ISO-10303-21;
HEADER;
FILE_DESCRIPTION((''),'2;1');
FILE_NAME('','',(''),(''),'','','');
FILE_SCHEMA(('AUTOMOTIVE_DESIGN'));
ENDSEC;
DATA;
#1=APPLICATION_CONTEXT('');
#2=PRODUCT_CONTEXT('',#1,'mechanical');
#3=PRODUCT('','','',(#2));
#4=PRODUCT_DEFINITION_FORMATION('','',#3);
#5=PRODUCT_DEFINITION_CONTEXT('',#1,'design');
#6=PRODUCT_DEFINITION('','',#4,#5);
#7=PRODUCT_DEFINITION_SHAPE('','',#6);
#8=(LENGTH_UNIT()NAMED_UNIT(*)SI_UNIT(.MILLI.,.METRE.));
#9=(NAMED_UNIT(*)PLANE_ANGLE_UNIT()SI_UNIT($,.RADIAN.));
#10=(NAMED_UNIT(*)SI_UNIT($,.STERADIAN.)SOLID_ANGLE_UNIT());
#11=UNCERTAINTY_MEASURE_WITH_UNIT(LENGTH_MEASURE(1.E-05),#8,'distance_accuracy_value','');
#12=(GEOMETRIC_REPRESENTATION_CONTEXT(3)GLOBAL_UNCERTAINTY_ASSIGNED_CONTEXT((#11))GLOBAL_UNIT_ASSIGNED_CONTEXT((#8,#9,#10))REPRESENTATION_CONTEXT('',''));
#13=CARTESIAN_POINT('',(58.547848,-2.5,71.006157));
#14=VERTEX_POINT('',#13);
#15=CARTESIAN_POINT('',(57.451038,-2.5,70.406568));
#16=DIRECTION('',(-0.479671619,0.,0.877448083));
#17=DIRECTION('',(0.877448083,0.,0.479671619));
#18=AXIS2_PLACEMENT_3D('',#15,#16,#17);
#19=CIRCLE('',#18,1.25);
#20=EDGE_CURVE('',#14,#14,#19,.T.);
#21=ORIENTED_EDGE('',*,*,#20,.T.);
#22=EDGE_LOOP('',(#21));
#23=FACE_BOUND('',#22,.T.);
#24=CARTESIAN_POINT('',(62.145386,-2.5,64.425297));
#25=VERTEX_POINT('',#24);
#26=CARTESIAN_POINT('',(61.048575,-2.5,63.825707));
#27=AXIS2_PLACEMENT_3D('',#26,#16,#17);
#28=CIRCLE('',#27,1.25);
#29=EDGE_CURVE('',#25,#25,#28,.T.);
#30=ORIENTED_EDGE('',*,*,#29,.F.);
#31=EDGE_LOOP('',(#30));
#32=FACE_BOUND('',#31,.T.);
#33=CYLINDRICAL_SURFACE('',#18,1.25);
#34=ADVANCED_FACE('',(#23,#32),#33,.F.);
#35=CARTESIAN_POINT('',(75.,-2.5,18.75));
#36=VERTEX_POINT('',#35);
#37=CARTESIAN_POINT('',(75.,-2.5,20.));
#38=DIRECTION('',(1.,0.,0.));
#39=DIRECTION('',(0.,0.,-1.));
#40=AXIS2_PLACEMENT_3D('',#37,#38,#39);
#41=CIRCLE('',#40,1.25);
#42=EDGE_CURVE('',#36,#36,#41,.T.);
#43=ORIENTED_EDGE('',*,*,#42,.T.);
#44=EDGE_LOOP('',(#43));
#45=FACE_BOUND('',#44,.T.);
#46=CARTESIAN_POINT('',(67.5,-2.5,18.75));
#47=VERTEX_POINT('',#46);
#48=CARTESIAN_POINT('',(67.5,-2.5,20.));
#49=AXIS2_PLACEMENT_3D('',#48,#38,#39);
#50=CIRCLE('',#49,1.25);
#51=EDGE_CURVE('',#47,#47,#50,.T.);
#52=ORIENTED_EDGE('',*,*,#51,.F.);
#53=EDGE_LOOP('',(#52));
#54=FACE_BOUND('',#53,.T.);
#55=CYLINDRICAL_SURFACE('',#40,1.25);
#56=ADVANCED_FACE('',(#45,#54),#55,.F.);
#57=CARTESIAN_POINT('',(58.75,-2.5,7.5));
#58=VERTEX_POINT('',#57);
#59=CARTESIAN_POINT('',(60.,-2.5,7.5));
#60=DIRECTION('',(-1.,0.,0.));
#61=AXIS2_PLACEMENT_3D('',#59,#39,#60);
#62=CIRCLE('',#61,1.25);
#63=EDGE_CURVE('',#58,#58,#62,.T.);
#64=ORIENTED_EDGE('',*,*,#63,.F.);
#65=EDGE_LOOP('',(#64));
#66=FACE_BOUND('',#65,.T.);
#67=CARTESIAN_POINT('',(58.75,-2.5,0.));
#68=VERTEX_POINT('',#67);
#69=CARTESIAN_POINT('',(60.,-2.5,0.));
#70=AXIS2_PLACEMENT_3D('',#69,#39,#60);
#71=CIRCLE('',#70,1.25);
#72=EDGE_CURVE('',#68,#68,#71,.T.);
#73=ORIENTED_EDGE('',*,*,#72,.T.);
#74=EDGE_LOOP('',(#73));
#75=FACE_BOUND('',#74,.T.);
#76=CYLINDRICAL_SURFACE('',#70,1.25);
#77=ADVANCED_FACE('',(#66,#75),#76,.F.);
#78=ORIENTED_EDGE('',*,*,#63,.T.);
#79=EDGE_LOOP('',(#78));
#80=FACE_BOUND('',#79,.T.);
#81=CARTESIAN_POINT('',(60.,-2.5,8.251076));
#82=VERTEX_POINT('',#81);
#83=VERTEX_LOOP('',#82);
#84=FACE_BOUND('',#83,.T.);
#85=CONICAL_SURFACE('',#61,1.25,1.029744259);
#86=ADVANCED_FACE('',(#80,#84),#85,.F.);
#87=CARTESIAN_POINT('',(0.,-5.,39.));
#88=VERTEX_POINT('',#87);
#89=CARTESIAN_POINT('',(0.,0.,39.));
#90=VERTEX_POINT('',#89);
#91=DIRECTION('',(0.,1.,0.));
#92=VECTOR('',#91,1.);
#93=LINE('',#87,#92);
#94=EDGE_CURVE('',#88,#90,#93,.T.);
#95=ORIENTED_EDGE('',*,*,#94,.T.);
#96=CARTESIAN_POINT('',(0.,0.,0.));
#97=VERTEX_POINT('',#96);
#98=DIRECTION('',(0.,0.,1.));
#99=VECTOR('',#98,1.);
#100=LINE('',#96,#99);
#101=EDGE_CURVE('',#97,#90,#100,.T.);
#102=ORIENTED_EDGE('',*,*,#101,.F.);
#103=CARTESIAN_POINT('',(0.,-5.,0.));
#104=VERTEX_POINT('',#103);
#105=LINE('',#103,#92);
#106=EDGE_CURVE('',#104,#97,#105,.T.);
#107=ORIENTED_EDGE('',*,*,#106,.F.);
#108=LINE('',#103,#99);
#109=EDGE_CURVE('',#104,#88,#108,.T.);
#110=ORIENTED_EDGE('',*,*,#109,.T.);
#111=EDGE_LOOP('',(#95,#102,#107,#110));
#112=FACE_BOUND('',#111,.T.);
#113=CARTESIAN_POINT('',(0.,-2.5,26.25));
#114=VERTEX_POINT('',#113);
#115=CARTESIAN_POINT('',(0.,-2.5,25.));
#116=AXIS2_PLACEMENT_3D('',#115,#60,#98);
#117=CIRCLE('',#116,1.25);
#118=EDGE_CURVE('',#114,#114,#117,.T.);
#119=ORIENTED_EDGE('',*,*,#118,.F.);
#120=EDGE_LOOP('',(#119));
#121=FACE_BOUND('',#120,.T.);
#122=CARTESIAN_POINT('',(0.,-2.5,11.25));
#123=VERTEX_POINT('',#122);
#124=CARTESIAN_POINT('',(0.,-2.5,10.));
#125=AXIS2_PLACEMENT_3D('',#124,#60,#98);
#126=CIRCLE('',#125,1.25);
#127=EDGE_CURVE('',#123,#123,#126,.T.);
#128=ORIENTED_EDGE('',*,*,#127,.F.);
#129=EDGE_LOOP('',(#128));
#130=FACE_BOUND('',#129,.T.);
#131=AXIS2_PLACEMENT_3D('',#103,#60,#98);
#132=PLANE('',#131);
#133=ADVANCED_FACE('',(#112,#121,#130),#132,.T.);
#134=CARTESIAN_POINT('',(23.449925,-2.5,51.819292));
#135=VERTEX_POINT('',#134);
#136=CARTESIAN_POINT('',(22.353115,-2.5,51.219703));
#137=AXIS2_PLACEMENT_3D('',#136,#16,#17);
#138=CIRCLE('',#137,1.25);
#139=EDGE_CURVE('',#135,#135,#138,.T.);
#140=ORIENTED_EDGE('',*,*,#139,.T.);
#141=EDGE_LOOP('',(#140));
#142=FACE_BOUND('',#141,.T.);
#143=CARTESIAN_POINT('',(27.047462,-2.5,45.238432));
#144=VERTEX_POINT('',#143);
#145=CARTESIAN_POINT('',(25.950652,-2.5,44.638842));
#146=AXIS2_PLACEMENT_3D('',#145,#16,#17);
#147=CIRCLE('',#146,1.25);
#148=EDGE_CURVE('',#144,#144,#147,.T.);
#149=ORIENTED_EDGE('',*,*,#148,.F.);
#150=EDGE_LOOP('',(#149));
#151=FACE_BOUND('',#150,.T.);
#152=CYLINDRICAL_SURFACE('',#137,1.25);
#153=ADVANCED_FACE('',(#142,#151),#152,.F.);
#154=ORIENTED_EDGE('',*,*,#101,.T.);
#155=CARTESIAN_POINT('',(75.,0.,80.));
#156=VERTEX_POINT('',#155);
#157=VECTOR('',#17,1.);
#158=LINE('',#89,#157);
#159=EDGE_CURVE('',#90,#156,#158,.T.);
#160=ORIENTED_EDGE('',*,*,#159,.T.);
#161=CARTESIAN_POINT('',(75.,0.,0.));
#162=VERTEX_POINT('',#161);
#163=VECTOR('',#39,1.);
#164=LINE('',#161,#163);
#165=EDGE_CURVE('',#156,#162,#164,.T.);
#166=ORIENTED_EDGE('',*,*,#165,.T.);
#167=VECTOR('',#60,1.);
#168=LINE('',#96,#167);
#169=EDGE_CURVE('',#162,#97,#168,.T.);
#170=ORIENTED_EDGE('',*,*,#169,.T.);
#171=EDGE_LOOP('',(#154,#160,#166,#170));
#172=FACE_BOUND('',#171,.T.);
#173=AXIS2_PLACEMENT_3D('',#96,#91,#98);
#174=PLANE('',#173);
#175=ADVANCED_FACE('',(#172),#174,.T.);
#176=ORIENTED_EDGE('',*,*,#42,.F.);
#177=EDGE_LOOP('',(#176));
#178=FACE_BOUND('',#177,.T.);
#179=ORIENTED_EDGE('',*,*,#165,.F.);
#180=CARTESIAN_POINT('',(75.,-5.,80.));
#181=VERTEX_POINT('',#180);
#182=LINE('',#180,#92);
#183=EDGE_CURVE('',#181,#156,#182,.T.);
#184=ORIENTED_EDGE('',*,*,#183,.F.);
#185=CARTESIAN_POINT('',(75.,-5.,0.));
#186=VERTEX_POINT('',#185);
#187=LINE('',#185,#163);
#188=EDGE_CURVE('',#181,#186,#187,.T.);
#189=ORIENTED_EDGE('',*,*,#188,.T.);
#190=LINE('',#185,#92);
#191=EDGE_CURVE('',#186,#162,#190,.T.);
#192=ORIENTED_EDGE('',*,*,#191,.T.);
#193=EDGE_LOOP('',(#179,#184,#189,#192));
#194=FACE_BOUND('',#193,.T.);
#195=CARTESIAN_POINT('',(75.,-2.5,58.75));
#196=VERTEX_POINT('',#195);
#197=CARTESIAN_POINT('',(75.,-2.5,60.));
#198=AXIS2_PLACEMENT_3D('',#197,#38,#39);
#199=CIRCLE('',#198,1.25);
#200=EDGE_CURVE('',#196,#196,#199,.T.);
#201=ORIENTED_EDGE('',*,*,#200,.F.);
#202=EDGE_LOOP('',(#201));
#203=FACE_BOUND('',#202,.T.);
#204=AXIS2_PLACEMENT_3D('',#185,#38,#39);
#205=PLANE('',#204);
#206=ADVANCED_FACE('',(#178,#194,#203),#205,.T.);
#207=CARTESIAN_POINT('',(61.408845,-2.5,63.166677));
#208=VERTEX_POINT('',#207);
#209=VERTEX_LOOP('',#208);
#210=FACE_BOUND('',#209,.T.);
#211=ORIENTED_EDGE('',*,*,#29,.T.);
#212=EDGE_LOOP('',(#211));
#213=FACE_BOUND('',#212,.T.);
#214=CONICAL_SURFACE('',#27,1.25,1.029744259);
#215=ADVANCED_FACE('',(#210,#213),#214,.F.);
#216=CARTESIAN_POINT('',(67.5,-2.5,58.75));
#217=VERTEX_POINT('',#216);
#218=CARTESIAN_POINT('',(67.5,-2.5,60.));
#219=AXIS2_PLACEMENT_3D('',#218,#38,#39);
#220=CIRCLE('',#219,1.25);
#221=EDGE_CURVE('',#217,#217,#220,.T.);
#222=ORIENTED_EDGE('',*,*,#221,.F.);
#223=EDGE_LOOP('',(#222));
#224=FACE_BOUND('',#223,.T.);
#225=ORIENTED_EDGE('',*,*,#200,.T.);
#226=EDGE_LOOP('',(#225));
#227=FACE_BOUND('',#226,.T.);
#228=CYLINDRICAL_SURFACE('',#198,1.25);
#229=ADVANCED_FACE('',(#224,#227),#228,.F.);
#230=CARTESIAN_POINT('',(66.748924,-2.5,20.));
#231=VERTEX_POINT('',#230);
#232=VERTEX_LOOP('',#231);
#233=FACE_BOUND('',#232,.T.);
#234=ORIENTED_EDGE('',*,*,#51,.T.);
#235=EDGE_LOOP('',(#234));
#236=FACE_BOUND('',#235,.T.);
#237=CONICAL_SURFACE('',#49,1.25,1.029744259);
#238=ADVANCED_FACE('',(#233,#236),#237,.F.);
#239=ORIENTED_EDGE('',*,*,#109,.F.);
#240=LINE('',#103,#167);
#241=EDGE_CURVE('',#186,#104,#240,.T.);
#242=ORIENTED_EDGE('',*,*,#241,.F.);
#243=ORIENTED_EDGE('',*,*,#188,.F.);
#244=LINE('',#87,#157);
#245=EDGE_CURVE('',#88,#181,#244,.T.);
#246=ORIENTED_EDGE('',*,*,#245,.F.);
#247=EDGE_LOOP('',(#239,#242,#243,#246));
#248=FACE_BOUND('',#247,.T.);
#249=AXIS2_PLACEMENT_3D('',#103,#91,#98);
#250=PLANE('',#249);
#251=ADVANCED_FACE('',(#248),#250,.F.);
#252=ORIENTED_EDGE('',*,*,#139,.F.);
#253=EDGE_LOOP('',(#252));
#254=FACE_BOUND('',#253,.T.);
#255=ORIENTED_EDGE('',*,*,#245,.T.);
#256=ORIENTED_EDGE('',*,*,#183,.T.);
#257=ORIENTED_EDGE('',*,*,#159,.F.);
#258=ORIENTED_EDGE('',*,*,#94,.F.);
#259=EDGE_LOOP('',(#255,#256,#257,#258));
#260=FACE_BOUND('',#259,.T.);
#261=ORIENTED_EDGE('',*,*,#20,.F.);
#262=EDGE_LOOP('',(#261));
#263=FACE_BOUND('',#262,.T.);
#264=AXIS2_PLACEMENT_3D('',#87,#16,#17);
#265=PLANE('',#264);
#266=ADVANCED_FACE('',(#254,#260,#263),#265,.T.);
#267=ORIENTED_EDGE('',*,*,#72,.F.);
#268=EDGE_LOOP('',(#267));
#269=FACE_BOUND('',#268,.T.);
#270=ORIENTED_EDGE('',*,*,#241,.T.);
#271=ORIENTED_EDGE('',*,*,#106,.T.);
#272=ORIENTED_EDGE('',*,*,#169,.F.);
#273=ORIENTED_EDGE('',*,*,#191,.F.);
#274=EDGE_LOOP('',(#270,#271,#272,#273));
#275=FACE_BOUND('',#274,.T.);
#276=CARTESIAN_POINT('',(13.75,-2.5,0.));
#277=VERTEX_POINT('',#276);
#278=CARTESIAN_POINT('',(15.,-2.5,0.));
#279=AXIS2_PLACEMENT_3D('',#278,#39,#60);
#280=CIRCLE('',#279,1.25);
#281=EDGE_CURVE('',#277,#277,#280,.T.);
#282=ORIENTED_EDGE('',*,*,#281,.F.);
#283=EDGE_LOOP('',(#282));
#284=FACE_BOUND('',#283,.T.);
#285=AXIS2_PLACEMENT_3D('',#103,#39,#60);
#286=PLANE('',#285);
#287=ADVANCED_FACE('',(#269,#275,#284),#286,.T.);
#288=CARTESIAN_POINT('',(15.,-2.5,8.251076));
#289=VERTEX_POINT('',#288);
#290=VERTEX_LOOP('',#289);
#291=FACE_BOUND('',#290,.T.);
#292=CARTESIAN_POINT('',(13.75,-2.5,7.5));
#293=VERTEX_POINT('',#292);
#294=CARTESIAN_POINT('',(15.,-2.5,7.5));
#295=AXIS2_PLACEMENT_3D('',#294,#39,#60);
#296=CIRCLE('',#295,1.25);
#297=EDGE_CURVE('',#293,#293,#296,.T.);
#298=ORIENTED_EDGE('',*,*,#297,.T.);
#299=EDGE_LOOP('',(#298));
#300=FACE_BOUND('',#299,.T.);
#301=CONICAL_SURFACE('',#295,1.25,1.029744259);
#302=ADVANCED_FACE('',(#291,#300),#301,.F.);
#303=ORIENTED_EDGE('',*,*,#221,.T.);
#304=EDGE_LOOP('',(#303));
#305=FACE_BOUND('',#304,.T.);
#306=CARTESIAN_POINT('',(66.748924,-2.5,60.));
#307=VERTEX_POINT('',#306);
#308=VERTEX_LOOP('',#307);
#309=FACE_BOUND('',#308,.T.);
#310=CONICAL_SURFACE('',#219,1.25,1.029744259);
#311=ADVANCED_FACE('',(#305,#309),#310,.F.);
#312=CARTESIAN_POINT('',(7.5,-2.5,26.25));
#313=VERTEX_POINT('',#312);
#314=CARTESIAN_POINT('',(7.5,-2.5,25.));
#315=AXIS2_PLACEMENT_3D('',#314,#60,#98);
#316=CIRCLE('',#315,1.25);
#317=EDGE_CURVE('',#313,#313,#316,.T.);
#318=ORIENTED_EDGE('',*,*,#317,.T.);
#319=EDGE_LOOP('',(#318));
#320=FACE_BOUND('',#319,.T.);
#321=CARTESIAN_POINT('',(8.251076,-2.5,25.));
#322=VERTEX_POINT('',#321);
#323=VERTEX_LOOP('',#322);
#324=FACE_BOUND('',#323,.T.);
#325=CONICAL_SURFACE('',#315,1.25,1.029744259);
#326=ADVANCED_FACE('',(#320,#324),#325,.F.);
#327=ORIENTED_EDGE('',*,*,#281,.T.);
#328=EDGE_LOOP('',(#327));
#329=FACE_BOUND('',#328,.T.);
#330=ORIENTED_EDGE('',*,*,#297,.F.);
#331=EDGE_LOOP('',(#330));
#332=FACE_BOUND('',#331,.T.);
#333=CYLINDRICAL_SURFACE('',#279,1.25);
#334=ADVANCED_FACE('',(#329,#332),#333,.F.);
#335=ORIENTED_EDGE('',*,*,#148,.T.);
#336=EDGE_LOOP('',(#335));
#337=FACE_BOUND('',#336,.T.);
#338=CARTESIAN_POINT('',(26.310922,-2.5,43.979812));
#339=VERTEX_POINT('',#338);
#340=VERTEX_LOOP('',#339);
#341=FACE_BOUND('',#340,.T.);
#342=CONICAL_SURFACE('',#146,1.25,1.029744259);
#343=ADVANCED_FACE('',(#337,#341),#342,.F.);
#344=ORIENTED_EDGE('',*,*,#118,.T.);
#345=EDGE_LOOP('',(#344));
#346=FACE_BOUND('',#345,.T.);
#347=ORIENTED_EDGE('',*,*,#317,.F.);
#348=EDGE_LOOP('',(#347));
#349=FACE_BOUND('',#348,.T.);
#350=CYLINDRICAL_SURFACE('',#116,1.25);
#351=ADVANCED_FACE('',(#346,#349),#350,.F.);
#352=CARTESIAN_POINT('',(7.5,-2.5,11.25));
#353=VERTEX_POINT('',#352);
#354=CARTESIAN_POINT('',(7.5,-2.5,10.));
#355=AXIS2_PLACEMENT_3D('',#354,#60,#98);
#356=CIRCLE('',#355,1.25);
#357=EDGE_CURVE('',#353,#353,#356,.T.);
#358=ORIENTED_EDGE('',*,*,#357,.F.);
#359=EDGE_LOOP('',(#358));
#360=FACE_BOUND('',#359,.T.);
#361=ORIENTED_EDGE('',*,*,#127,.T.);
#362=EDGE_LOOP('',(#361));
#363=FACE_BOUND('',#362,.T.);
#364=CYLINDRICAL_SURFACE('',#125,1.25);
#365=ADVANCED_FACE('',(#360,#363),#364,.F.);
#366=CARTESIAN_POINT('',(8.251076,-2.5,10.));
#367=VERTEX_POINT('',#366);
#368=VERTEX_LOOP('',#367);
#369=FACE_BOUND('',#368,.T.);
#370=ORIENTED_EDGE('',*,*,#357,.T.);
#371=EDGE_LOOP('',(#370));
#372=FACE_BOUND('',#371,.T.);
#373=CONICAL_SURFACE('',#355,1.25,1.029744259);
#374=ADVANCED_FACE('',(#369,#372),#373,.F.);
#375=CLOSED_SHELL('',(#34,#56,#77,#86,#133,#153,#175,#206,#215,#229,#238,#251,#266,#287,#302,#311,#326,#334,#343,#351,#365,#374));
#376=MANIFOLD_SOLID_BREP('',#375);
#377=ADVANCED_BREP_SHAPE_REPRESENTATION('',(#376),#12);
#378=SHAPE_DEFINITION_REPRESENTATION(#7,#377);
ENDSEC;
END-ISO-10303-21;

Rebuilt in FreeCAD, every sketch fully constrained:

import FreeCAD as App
import Part
import Sketcher
from FreeCAD import Vector

doc = App.newDocument("Part")
params = doc.addObject("Spreadsheet::Sheet", "Params")
for row, (alias, value) in enumerate([
    ("sketch1_width", "75 mm"),
    ("sketch1_height", "80 mm"),
    ("sketch1_height2", "39 mm"),
    ("pad1_length", "5 mm"),
    ("sketch2_diameter", "2.5 mm"),
    ("hole_diameter", "2.5 mm"),
    ("hole_depth", "7.5 mm"),
    ("sketch3_diameter", "2.5 mm"),
    ("hole2_diameter", "2.5 mm"),
    ("hole2_depth", "7.5 mm"),
    ("sketch4_diameter", "2.5 mm"),
    ("hole3_diameter", "2.5 mm"),
    ("hole3_depth", "7.5 mm"),
    ("sketch5_diameter", "2.5 mm"),
    ("hole4_diameter", "2.5 mm"),
    ("hole4_depth", "7.5 mm"),
], start=1):
    params.set(f"A{row}", alias)
    params.set(f"B{row}", "=" + value)
    params.setAlias(f"B{row}", alias)

body = doc.addObject("PartDesign::Body", "Body")

# Sketch on XZ plane
sketch1 = doc.addObject("Sketcher::SketchObject", "Sketch")
body.addObject(sketch1)
sketch1.AttachmentSupport = (doc.XZ_Plane, [""])
sketch1.MapMode = "FlatFace"
sketch1.addGeometry([
    Part.LineSegment(Vector(0, 39, 0), Vector(75, 80, 0)),
    Part.LineSegment(Vector(75, 80, 0), Vector(75, 0, 0)),
    Part.LineSegment(Vector(75, 0, 0), Vector(0, 0, 0)),
    Part.LineSegment(Vector(0, 0, 0), Vector(0, 39, 0)),
], False)
sketch1.addConstraint([
    Sketcher.Constraint("Coincident", 0, 2, 1, 1),
    Sketcher.Constraint("Coincident", 1, 2, 2, 1),
    Sketcher.Constraint("Coincident", 2, 2, 3, 1),
    Sketcher.Constraint("Coincident", 3, 2, 0, 1),
    Sketcher.Constraint("Vertical", 1),
    Sketcher.Constraint("Horizontal", 2),
    Sketcher.Constraint("Vertical", 3),
    Sketcher.Constraint("Coincident", 2, 2, -1, 1),
    Sketcher.Constraint("DistanceX", 2, 2, 2, 1, 75.0),
    Sketcher.Constraint("DistanceY", 1, 2, 1, 1, 80.0),
    Sketcher.Constraint("DistanceY", 3, 1, 3, 2, 39.0),
])
sketch1.setExpression("Constraints[8]", "Params.sketch1_width")
sketch1.setExpression("Constraints[9]", "Params.sketch1_height")
sketch1.setExpression("Constraints[10]", "Params.sketch1_height2")
pad1 = doc.addObject("PartDesign::Pad", "Pad")
body.addObject(pad1)
pad1.Profile = sketch1
pad1.setExpression("Length", "Params.pad1_length")

# Sketch on XY plane
sketch2 = doc.addObject("Sketcher::SketchObject", "Sketch001")
body.addObject(sketch2)
sketch2.AttachmentSupport = (doc.XY_Plane, [""])
sketch2.MapMode = "FlatFace"
sketch2.addGeometry([
    Part.Circle(Vector(15, -2.5, 0), Vector(0, 0, 1), 1.2),
    Part.Circle(Vector(60, -2.5, 0), Vector(0, 0, 1), 1.2),
], False)
sketch2.addConstraint([
    Sketcher.Constraint("Equal", 0, 1),
    Sketcher.Constraint("Horizontal", 0, 3, 1, 3),
    Sketcher.Constraint("Diameter", 0, 2.5),
    Sketcher.Constraint("DistanceX", -1, 1, 0, 3, 15.0),
    Sketcher.Constraint("DistanceX", -1, 1, 1, 3, 60.0),
    Sketcher.Constraint("DistanceY", 0, 3, -1, 1, 2.5),
])
sketch2.setExpression("Constraints[2]", "Params.sketch2_diameter")
doc.recompute()
hole = doc.addObject("PartDesign::Hole", "Hole")
body.addObject(hole)
hole.Profile = sketch2
hole.ThreadType = "None"
hole.setExpression("Diameter", "Params.hole_diameter")
hole.DepthType = "Dimension"
hole.setExpression("Depth", "Params.hole_depth")
hole.DrillPoint = "Angled"
hole.DrillPointAngle = 118
hole.Reversed = True

# Sketch on YZ plane
sketch3 = doc.addObject("Sketcher::SketchObject", "Sketch002")
body.addObject(sketch3)
sketch3.AttachmentSupport = (doc.YZ_Plane, [""])
sketch3.MapMode = "FlatFace"
sketch3.addGeometry([
    Part.Circle(Vector(-2.5, 10, 0), Vector(0, 0, 1), 1.2),
    Part.Circle(Vector(-2.5, 25, 0), Vector(0, 0, 1), 1.2),
], False)
sketch3.addConstraint([
    Sketcher.Constraint("Equal", 0, 1),
    Sketcher.Constraint("Vertical", 0, 3, 1, 3),
    Sketcher.Constraint("Diameter", 0, 2.5),
    Sketcher.Constraint("DistanceY", -1, 1, 0, 3, 10.0),
    Sketcher.Constraint("DistanceY", -1, 1, 1, 3, 25.0),
    Sketcher.Constraint("DistanceX", 0, 3, -1, 1, 2.5),
])
sketch3.setExpression("Constraints[2]", "Params.sketch3_diameter")
doc.recompute()
hole2 = doc.addObject("PartDesign::Hole", "Hole001")
body.addObject(hole2)
hole2.Profile = sketch3
hole2.ThreadType = "None"
hole2.setExpression("Diameter", "Params.hole2_diameter")
hole2.DepthType = "Dimension"
hole2.setExpression("Depth", "Params.hole2_depth")
hole2.DrillPoint = "Angled"
hole2.DrillPointAngle = 118
hole2.Reversed = True

# Sketch on YZ plane
sketch4 = doc.addObject("Sketcher::SketchObject", "Sketch003")
body.addObject(sketch4)
sketch4.AttachmentSupport = (doc.YZ_Plane, [""])
sketch4.MapMode = "FlatFace"
sketch4.AttachmentOffset = App.Placement(Vector(0, 0, 75), App.Rotation())
sketch4.addGeometry([
    Part.Circle(Vector(-2.5, 20, 0), Vector(0, 0, 1), 1.2),
    Part.Circle(Vector(-2.5, 60, 0), Vector(0, 0, 1), 1.2),
], False)
sketch4.addConstraint([
    Sketcher.Constraint("Equal", 0, 1),
    Sketcher.Constraint("Vertical", 0, 3, 1, 3),
    Sketcher.Constraint("Diameter", 0, 2.5),
    Sketcher.Constraint("DistanceY", -1, 1, 0, 3, 20.0),
    Sketcher.Constraint("DistanceY", -1, 1, 1, 3, 60.0),
    Sketcher.Constraint("DistanceX", 0, 3, -1, 1, 2.5),
])
sketch4.setExpression("Constraints[2]", "Params.sketch4_diameter")
doc.recompute()
hole3 = doc.addObject("PartDesign::Hole", "Hole002")
body.addObject(hole3)
hole3.Profile = sketch4
hole3.ThreadType = "None"
hole3.setExpression("Diameter", "Params.hole3_diameter")
hole3.DepthType = "Dimension"
hole3.setExpression("Depth", "Params.hole3_depth")
hole3.DrillPoint = "Angled"
hole3.DrillPointAngle = 118

# Sketch on an angled plane
sketch5 = doc.addObject("Sketcher::SketchObject", "Sketch004")
body.addObject(sketch5)
sketch5.Placement = App.Placement(Vector(-16.414591, 0, 30.02669), App.Rotation(Vector(0.877448083, 0, 0.479671619), Vector(0, 1, 0), Vector(-0.479671619, 0, 0.877448083), "ZXY"))
sketch5.addGeometry([
    Part.Circle(Vector(44.2, -2.5, 0), Vector(0, 0, 1), 1.2),
    Part.Circle(Vector(84.2, -2.5, 0), Vector(0, 0, 1), 1.2),
], False)
sketch5.addConstraint([
    Sketcher.Constraint("Equal", 0, 1),
    Sketcher.Constraint("Horizontal", 0, 3, 1, 3),
    Sketcher.Constraint("Diameter", 0, 2.5),
    Sketcher.Constraint("DistanceX", 0, 3, 1, 3, 40.0),
    Sketcher.Constraint("DistanceY", 0, 3, -1, 1, 2.5),
    Sketcher.Constraint("DistanceX", -1, 1, 0, 3, 44.182336),
])
sketch5.setExpression("Constraints[2]", "Params.sketch5_diameter")
doc.recompute()
hole4 = doc.addObject("PartDesign::Hole", "Hole003")
body.addObject(hole4)
hole4.Profile = sketch5
hole4.ThreadType = "None"
hole4.setExpression("Diameter", "Params.hole4_diameter")
hole4.DepthType = "Dimension"
hole4.setExpression("Depth", "Params.hole4_depth")
hole4.DrillPoint = "Angled"
hole4.DrillPointAngle = 118

doc.recompute()
